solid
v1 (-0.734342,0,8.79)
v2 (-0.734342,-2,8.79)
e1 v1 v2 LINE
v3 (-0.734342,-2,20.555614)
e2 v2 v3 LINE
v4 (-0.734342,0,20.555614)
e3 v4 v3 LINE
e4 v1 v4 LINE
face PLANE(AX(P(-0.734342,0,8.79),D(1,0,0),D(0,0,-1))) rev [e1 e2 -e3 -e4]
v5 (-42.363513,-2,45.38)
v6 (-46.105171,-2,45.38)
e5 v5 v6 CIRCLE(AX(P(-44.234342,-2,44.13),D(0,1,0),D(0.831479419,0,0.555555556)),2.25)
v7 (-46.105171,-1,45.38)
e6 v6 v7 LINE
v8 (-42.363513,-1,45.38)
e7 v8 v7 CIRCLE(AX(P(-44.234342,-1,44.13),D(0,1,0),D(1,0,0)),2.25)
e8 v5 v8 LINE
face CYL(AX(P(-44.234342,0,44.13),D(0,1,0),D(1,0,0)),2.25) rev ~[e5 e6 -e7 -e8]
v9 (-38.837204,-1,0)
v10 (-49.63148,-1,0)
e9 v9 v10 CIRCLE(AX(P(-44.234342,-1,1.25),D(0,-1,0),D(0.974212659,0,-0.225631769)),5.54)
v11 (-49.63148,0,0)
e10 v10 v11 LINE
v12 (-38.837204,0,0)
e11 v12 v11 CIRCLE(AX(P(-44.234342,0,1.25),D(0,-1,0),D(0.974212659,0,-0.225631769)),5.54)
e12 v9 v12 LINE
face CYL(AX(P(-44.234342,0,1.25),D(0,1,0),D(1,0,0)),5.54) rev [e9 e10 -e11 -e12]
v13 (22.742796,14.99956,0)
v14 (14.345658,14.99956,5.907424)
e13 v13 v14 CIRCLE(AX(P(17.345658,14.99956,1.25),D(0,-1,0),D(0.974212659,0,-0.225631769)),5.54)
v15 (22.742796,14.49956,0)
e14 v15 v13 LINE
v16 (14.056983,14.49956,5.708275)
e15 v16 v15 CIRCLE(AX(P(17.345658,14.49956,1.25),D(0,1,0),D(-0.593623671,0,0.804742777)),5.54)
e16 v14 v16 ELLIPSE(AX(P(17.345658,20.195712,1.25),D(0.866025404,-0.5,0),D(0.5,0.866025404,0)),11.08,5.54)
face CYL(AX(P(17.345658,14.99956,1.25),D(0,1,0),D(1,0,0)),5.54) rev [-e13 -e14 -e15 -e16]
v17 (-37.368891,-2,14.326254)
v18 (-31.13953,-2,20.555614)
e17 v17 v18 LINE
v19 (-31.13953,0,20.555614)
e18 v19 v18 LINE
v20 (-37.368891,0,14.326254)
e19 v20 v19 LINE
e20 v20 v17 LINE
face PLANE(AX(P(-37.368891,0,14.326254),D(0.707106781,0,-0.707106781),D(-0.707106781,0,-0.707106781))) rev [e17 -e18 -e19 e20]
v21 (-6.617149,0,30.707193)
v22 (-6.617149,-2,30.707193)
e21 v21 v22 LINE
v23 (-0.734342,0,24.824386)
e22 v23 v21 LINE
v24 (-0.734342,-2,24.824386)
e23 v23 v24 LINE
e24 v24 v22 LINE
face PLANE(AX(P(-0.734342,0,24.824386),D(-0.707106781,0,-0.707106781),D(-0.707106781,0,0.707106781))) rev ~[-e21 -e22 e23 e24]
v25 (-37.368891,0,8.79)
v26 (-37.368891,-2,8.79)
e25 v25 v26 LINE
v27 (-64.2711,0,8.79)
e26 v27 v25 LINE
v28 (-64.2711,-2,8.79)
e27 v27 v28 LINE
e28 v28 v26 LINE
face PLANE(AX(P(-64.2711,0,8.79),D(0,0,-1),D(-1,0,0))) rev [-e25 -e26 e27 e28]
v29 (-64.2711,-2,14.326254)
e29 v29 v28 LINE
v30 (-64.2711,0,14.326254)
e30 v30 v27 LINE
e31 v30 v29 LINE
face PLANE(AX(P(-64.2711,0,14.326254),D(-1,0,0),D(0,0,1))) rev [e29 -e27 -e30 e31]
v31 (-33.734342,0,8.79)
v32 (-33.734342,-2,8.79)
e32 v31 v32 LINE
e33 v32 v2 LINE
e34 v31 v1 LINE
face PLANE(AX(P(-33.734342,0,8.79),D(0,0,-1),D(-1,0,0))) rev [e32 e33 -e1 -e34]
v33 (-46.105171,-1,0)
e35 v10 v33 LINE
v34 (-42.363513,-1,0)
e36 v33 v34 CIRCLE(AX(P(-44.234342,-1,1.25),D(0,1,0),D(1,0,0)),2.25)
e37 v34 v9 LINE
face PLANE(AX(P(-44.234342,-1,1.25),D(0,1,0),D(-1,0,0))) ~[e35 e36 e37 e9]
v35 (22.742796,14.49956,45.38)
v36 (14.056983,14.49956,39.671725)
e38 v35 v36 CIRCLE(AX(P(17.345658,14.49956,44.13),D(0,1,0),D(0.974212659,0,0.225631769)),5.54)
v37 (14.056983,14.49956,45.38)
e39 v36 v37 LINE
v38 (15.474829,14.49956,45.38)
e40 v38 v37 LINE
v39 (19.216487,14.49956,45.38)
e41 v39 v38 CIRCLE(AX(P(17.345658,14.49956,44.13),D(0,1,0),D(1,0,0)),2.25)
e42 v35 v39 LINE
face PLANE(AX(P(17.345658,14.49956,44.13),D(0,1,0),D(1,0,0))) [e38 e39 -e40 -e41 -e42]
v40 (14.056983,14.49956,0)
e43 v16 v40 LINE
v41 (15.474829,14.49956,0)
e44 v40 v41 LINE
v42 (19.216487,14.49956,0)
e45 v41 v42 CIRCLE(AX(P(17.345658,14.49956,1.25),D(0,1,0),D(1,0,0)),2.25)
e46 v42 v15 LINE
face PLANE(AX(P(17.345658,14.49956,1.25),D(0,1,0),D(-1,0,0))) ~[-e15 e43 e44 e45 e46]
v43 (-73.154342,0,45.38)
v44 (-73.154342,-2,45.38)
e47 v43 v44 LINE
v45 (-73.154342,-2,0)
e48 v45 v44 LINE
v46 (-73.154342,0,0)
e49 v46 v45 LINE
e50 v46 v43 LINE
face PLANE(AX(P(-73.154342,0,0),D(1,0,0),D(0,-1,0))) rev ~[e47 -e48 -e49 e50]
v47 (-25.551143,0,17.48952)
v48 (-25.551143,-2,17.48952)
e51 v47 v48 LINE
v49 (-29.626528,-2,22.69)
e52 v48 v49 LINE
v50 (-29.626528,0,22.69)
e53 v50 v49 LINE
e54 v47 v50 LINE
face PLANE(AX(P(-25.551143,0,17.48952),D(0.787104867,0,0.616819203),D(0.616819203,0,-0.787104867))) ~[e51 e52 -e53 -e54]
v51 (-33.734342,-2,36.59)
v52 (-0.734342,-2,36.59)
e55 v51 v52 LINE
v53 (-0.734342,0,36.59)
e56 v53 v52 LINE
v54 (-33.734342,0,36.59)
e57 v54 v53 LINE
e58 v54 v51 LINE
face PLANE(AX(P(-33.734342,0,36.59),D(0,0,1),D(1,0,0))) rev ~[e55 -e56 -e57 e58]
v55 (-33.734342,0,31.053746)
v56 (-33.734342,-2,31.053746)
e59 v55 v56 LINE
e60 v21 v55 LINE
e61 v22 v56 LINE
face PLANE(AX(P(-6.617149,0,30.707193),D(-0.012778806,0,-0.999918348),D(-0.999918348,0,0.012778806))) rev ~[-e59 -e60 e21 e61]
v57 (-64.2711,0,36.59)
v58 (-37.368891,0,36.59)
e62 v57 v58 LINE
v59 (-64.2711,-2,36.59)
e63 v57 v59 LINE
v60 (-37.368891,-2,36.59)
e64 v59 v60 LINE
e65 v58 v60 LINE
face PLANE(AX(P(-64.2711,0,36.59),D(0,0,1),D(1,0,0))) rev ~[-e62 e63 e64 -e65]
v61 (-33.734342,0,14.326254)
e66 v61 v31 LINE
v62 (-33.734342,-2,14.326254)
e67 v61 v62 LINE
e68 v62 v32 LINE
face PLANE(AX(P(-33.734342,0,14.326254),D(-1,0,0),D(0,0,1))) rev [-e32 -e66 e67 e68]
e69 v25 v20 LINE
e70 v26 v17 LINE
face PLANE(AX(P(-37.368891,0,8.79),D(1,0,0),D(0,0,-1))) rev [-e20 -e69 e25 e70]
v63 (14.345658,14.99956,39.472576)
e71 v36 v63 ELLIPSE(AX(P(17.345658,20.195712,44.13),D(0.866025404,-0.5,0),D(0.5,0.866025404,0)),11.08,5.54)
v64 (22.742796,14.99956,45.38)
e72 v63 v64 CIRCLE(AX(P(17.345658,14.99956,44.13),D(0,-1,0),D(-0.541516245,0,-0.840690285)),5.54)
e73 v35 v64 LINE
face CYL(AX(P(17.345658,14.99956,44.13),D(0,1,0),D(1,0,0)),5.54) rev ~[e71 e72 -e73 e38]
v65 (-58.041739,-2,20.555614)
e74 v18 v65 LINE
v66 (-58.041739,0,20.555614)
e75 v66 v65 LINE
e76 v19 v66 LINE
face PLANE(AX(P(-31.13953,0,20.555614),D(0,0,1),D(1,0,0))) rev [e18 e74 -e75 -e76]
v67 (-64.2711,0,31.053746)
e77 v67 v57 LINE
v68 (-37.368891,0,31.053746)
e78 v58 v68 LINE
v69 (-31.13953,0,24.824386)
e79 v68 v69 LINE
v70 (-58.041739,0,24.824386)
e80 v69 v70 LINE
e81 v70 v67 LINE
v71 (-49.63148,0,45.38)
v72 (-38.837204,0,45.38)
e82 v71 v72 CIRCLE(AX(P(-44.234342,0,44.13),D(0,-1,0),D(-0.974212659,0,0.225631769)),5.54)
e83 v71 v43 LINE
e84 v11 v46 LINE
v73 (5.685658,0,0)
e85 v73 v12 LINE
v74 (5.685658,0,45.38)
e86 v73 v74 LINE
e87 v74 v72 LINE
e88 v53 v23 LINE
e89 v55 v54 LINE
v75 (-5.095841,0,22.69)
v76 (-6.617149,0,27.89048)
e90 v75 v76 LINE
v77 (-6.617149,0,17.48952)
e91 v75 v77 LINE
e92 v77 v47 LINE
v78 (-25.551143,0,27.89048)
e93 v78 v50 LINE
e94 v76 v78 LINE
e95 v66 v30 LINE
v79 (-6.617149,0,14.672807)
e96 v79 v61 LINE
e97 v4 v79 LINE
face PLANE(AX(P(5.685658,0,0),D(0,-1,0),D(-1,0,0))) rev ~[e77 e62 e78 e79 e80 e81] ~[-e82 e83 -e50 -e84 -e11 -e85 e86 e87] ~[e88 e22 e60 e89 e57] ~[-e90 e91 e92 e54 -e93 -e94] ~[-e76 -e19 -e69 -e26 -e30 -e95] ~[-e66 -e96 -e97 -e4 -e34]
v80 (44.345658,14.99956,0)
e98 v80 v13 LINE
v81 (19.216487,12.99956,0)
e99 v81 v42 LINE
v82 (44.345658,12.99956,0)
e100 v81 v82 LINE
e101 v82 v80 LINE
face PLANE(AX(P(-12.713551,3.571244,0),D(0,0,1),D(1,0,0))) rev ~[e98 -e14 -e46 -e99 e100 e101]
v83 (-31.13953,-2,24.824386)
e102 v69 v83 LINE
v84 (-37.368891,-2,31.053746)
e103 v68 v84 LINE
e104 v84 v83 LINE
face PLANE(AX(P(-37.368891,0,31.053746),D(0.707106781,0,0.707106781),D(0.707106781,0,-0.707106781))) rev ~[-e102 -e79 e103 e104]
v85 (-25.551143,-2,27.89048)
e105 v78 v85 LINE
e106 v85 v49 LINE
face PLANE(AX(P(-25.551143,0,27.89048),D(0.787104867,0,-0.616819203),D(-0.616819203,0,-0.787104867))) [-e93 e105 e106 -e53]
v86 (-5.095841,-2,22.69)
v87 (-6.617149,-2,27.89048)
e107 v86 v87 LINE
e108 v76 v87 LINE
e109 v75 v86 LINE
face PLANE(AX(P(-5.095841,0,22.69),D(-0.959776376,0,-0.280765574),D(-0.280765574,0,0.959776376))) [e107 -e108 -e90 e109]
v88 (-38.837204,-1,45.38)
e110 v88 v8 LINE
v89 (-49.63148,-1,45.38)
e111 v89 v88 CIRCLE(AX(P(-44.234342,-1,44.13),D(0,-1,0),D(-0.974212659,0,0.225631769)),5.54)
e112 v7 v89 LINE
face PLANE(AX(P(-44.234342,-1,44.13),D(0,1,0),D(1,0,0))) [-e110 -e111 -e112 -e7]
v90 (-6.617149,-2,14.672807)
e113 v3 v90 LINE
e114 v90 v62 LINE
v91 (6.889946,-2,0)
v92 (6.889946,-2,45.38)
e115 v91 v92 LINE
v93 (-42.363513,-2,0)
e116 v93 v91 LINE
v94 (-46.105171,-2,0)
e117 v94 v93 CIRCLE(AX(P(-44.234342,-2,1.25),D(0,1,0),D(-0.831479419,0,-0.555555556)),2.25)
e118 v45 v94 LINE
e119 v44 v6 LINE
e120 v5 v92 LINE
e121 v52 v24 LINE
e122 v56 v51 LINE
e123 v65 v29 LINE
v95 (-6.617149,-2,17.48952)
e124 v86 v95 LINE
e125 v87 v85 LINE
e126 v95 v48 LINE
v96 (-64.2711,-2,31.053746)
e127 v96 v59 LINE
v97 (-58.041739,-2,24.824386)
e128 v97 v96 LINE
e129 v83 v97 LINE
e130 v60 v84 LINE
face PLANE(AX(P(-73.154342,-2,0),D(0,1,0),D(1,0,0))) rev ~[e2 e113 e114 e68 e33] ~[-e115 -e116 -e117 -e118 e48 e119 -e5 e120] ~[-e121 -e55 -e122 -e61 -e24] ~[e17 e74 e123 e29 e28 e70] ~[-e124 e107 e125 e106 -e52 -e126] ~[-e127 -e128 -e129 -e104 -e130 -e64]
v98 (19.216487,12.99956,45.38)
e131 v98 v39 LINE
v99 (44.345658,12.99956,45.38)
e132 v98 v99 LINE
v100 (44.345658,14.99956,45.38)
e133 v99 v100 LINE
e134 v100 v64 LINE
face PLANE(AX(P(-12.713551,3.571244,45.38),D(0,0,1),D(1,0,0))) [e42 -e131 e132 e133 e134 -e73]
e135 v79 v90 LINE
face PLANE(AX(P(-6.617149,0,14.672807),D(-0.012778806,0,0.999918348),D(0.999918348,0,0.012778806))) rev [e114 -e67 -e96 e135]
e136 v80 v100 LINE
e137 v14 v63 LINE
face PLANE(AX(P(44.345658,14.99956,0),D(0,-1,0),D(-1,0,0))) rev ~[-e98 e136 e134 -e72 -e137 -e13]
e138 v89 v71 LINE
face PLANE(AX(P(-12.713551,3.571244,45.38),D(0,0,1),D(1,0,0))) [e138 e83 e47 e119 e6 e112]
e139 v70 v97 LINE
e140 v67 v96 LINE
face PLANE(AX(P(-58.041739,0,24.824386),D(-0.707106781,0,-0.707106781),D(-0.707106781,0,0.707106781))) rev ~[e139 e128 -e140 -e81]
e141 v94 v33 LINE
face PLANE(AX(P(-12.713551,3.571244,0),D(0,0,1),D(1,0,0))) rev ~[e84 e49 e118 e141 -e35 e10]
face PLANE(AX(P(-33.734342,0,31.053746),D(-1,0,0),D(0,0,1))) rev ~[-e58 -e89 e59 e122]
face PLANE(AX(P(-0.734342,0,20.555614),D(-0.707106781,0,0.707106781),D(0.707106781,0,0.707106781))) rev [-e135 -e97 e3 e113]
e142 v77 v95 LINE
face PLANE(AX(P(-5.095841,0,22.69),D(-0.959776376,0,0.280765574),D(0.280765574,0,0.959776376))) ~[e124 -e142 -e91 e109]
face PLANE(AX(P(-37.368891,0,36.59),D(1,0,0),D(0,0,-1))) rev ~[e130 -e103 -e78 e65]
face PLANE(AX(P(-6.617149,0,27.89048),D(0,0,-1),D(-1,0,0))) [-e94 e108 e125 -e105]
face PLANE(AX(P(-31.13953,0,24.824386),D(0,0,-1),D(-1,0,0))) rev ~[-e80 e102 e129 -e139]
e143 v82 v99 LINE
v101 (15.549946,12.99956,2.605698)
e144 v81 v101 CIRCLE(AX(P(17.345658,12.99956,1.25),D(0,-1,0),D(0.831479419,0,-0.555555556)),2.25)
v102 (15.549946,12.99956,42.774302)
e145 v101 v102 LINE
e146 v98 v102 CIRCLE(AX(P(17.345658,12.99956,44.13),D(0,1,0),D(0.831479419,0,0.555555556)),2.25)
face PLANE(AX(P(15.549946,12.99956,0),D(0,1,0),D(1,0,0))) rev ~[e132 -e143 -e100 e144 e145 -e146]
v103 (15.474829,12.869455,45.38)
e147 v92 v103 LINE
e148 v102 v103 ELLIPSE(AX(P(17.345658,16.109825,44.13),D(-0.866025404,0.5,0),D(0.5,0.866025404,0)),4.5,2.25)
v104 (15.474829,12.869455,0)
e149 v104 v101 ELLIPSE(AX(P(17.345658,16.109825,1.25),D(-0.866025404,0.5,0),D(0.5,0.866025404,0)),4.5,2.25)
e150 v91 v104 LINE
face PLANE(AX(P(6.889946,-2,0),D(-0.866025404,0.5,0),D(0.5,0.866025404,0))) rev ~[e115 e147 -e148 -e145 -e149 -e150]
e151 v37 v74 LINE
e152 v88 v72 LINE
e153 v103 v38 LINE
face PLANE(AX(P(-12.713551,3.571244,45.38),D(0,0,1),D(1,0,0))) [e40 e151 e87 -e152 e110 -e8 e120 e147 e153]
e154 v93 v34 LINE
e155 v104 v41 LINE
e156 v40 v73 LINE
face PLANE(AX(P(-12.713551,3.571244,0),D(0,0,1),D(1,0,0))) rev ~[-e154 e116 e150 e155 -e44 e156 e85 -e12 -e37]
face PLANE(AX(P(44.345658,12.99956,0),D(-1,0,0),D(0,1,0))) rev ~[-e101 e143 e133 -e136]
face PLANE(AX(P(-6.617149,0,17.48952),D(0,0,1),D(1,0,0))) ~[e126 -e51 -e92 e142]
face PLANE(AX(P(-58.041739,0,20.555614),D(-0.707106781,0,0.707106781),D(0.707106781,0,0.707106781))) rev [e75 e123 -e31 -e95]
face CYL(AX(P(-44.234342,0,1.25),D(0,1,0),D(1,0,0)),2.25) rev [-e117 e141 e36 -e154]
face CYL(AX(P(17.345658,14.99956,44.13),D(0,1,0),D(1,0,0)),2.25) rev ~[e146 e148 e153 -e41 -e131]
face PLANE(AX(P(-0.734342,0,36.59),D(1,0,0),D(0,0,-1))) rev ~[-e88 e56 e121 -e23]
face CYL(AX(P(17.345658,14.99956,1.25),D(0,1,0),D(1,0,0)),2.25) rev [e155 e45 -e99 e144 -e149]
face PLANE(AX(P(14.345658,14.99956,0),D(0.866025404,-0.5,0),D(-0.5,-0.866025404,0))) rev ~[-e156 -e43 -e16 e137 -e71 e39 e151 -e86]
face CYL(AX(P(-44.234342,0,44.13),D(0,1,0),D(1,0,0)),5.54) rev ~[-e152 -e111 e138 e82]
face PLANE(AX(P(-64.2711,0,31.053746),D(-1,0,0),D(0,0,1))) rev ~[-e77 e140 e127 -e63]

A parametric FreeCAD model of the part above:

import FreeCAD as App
import Part
import Sketcher
from FreeCAD import Vector
Q = App.Units.Quantity

doc = App.newDocument("Part")
body = doc.addObject("PartDesign::Body", "Body")

# Sketch on XY plane
sketch1 = doc.addObject("Sketcher::SketchObject", "Sketch")
body.addObject(sketch1)
sketch1.AttachmentSupport = (doc.XY_Plane, [""])
sketch1.MapMode = "FlatFace"
sketch1.addGeometry([
    Part.LineSegment(Vector(-73.2, 0, 0), Vector(-73.2, -2, 0)),  # 0
    Part.LineSegment(Vector(-73.2, -2, 0), Vector(6.9, -2, 0)),  # 1
    Part.LineSegment(Vector(6.9, -2, 0), Vector(15.5, 13, 0)),  # 2
    Part.LineSegment(Vector(15.5, 13, 0), Vector(44.3, 13, 0)),  # 3
    Part.LineSegment(Vector(44.3, 13, 0), Vector(44.3, 15, 0)),  # 4
    Part.LineSegment(Vector(44.3, 15, 0), Vector(14.3, 15, 0)),  # 5
    Part.LineSegment(Vector(14.3, 15, 0), Vector(5.7, 0, 0)),  # 6
    Part.LineSegment(Vector(5.7, 0, 0), Vector(-73.2, 0, 0)),  # 7
], False)
sketch1.addConstraint([
    Sketcher.Constraint("Coincident", 0, 2, 1, 1),
    Sketcher.Constraint("Coincident", 1, 2, 2, 1),
    Sketcher.Constraint("Coincident", 2, 2, 3, 1),
    Sketcher.Constraint("Coincident", 3, 2, 4, 1),
    Sketcher.Constraint("Coincident", 4, 2, 5, 1),
    Sketcher.Constraint("Coincident", 5, 2, 6, 1),
    Sketcher.Constraint("Coincident", 6, 2, 7, 1),
    Sketcher.Constraint("Coincident", 7, 2, 0, 1),
    Sketcher.Constraint("Vertical", 0),
    Sketcher.Constraint("Horizontal", 1),
    Sketcher.Constraint("Horizontal", 3),
    Sketcher.Constraint("Vertical", 4),
    Sketcher.Constraint("Horizontal", 5),
    Sketcher.Constraint("Horizontal", 7),
    Sketcher.Constraint("PointOnObject", 6, 2, -1),
    Sketcher.Constraint("Parallel", 2, 6),
    Sketcher.Constraint("Equal", 0, 4),
    Sketcher.Constraint("DistanceX", 5, 2, 5, 1, 30.0),
    Sketcher.Constraint("DistanceY", 0, 2, 0, 1, 2.0),
    Sketcher.Constraint("Angle", 2, Q("60 deg")),
    Sketcher.Constraint("DistanceX", 7, 2, 7, 1, 78.84),
    Sketcher.Constraint("DistanceX", 0, 2, 3, 2, 117.5),
    Sketcher.Constraint("DistanceX", 1, 1, 1, 2, 80.044288),
    Sketcher.Constraint("DistanceX", 0, 2, -1, 1, 73.154342),
])
pad1 = doc.addObject("PartDesign::Pad", "Pad")
body.addObject(pad1)
pad1.Profile = sketch1
pad1.Length = 45.38

# Sketch on XZ plane
sketch2 = doc.addObject("Sketcher::SketchObject", "Sketch001")
body.addObject(sketch2)
sketch2.AttachmentSupport = (doc.XZ_Plane, [""])
sketch2.MapMode = "FlatFace"
sketch2.AttachmentOffset = App.Placement(Vector(0, 0, -14.99956), App.Rotation())
sketch2.addGeometry(Part.Circle(Vector(17.3, 44.1, 0), Vector(0, 0, 1), 2.2), False)
sketch2.addConstraint([
    Sketcher.Constraint("Diameter", 0, 4.5),
    Sketcher.Constraint("DistanceY", -1, 1, 0, 3, 44.13),
    Sketcher.Constraint("DistanceX", -1, 1, 0, 3, 17.345658),
])
pocket1 = doc.addObject("PartDesign::Pocket", "Pocket")
body.addObject(pocket1)
pocket1.Profile = sketch2
pocket1.Length = 14.99956
pocket1.Reversed = True

# Sketch on XZ plane
sketch3 = doc.addObject("Sketcher::SketchObject", "Sketch002")
body.addObject(sketch3)
sketch3.AttachmentSupport = (doc.XZ_Plane, [""])
sketch3.MapMode = "FlatFace"
sketch3.AttachmentOffset = App.Placement(Vector(0, 0, -14.99956), App.Rotation())
sketch3.addGeometry(Part.Circle(Vector(17, 44, 0), Vector(0, 0, 1), 6), False)
sketch3.addConstraint([
    Sketcher.Constraint("Diameter", 0, 11.08),
    Sketcher.Constraint("DistanceY", -1, 1, 0, 3, 44.13),
    Sketcher.Constraint("DistanceX", -1, 1, 0, 3, 17.345658),
])
pocket2 = doc.addObject("PartDesign::Pocket", "Pocket001")
body.addObject(pocket2)
pocket2.Profile = sketch3
pocket2.Length = 0.5
pocket2.Reversed = True

# Sketch on XZ plane
sketch4 = doc.addObject("Sketcher::SketchObject", "Sketch003")
body.addObject(sketch4)
sketch4.AttachmentSupport = (doc.XZ_Plane, [""])
sketch4.MapMode = "FlatFace"
sketch4.addGeometry([
    Part.LineSegment(Vector(-1, 37, 0), Vector(-1, 25, 0)),  # 0
    Part.LineSegment(Vector(-1, 25, 0), Vector(-7, 31, 0)),  # 1
    Part.LineSegment(Vector(-7, 31, 0), Vector(-34, 31, 0)),  # 2
    Part.LineSegment(Vector(-34, 31, 0), Vector(-34, 37, 0)),  # 3
    Part.LineSegment(Vector(-34, 37, 0), Vector(-1, 37, 0)),  # 4
    Part.LineSegment(Vector(-37, 37, 0), Vector(-37, 31, 0)),  # 5
    Part.LineSegment(Vector(-37, 31, 0), Vector(-31, 25, 0)),  # 6
    Part.LineSegment(Vector(-31, 25, 0), Vector(-58, 25, 0)),  # 7
    Part.LineSegment(Vector(-58, 25, 0), Vector(-64, 31, 0)),  # 8
    Part.LineSegment(Vector(-64, 31, 0), Vector(-64, 37, 0)),  # 9
    Part.LineSegment(Vector(-64, 37, 0), Vector(-37, 37, 0)),  # 10
], False)
sketch4.addConstraint([
    Sketcher.Constraint("Coincident", 0, 2, 1, 1),
    Sketcher.Constraint("Coincident", 1, 2, 2, 1),
    Sketcher.Constraint("Coincident", 2, 2, 3, 1),
    Sketcher.Constraint("Coincident", 3, 2, 4, 1),
    Sketcher.Constraint("Coincident", 4, 2, 0, 1),
    Sketcher.Constraint("Coincident", 5, 2, 6, 1),
    Sketcher.Constraint("Coincident", 6, 2, 7, 1),
    Sketcher.Constraint("Coincident", 7, 2, 8, 1),
    Sketcher.Constraint("Coincident", 8, 2, 9, 1),
    Sketcher.Constraint("Coincident", 9, 2, 10, 1),
    Sketcher.Constraint("Coincident", 10, 2, 5, 1),
    Sketcher.Constraint("Vertical", 0),
    Sketcher.Constraint("Vertical", 3),
    Sketcher.Constraint("Horizontal", 4),
    Sketcher.Constraint("Vertical", 5),
    Sketcher.Constraint("Horizontal", 7),
    Sketcher.Constraint("Vertical", 9),
    Sketcher.Constraint("Horizontal", 10),
    Sketcher.Constraint("Parallel", 1, 6),
    Sketcher.Constraint("Parallel", 6, 8),
    Sketcher.Constraint("Horizontal", 2, 2, 5, 2),
    Sketcher.Constraint("Horizontal", 0, 2, 6, 2),
    Sketcher.Constraint("Horizontal", 5, 2, 8, 2),
    Sketcher.Constraint("Horizontal", 4, 2, 9, 2),
    Sketcher.Constraint("DistanceX", 4, 1, 4, 2, 33.0),
    Sketcher.Constraint("Angle", 1, Q("135 deg")),
    Sketcher.Constraint("DistanceY", -1, 1, 3, 2, 36.59),
    Sketcher.Constraint("DistanceX", 7, 2, 7, 1, 26.902209),
    Sketcher.Constraint("DistanceX", 8, 2, -1, 1, 64.2711),
    Sketcher.Constraint("DistanceY", 0, 2, 0, 1, 11.765614),
    Sketcher.Constraint("DistanceY", 3, 1, 3, 2, 5.536254),
    Sketcher.Constraint("DistanceX", 1, 2, -1, 1, 6.617149),
    Sketcher.Constraint("DistanceX", 5, 2, 2, 2, 3.634549),
])
pocket3 = doc.addObject("PartDesign::Pocket", "Pocket002")
body.addObject(pocket3)
pocket3.Profile = sketch4
pocket3.Length = 2
pocket3.Reversed = True

# Sketch on XZ plane
sketch5 = doc.addObject("Sketcher::SketchObject", "Sketch004")
body.addObject(sketch5)
sketch5.AttachmentSupport = (doc.XZ_Plane, [""])
sketch5.MapMode = "FlatFace"
sketch5.addGeometry([
    Part.LineSegment(Vector(-7, 28, 0), Vector(-5, 23, 0)),
    Part.LineSegment(Vector(-5, 23, 0), Vector(-30, 23, 0)),
    Part.LineSegment(Vector(-30, 23, 0), Vector(-26, 28, 0)),
    Part.LineSegment(Vector(-26, 28, 0), Vector(-7, 28, 0)),
], False)
sketch5.addConstraint([
    Sketcher.Constraint("Coincident", 0, 2, 1, 1),
    Sketcher.Constraint("Coincident", 1, 2, 2, 1),
    Sketcher.Constraint("Coincident", 2, 2, 3, 1),
    Sketcher.Constraint("Coincident", 3, 2, 0, 1),
    Sketcher.Constraint("Horizontal", 1),
    Sketcher.Constraint("Horizontal", 3),
    Sketcher.Constraint("DistanceY", -1, 1, 0, 2, 22.69),
    Sketcher.Constraint("Distance", 2, 6.607099),
    Sketcher.Constraint("DistanceX", 2, 2, 0, 2, 20.455302),
    Sketcher.Constraint("Distance", 0, 5.418429),
    Sketcher.Constraint("DistanceX", 1, 2, 1, 1, 24.530687),
    Sketcher.Constraint("DistanceX", 0, 2, -1, 1, 5.095841),
])
pocket4 = doc.addObject("PartDesign::Pocket", "Pocket003")
body.addObject(pocket4)
pocket4.Profile = sketch5
pocket4.Length = 2
pocket4.Reversed = True

# Sketch on XZ plane
sketch6 = doc.addObject("Sketcher::SketchObject", "Sketch005")
body.addObject(sketch6)
sketch6.AttachmentSupport = (doc.XZ_Plane, [""])
sketch6.MapMode = "FlatFace"
sketch6.addGeometry(Part.Circle(Vector(-44.2, 44.1, 0), Vector(0, 0, 1), 2.2), False)
sketch6.addConstraint([
    Sketcher.Constraint("Diameter", 0, 4.5),
    Sketcher.Constraint("DistanceY", -1, 1, 0, 3, 44.13),
    Sketcher.Constraint("DistanceX", 0, 3, -1, 1, 44.234342),
])
pocket5 = doc.addObject("PartDesign::Pocket", "Pocket004")
body.addObject(pocket5)
pocket5.Profile = sketch6
pocket5.Length = 2
pocket5.Reversed = True

# Sketch on XZ plane
sketch7 = doc.addObject("Sketcher::SketchObject", "Sketch006")
body.addObject(sketch7)
sketch7.AttachmentSupport = (doc.XZ_Plane, [""])
sketch7.MapMode = "FlatFace"
sketch7.addGeometry(Part.Circle(Vector(-44, 44, 0), Vector(0, 0, 1), 6), False)
sketch7.addConstraint([
    Sketcher.Constraint("Diameter", 0, 11.08),
    Sketcher.Constraint("DistanceY", -1, 1, 0, 3, 44.13),
    Sketcher.Constraint("DistanceX", 0, 3, -1, 1, 44.234342),
])
pocket6 = doc.addObject("PartDesign::Pocket", "Pocket005")
body.addObject(pocket6)
pocket6.Profile = sketch7
pocket6.Length = 1
pocket6.Reversed = True
doc.recompute()

datumplane = doc.addObject("PartDesign::Plane", "DatumPlane")
body.addObject(datumplane)
datumplane.AttachmentSupport = (doc.XY_Plane, [""])
datumplane.MapMode = "FlatFace"
datumplane.AttachmentOffset = App.Placement(Vector(0, 0, 22.69), App.Rotation())
mirrored = doc.addObject("PartDesign::Mirrored", "Mirrored")
body.addObject(mirrored)
mirrored.Originals = [pocket1, pocket2, pocket3, pocket4, pocket5, pocket6]
mirrored.MirrorPlane = (datumplane, [""])
body.Tip = mirrored

doc.recompute()
